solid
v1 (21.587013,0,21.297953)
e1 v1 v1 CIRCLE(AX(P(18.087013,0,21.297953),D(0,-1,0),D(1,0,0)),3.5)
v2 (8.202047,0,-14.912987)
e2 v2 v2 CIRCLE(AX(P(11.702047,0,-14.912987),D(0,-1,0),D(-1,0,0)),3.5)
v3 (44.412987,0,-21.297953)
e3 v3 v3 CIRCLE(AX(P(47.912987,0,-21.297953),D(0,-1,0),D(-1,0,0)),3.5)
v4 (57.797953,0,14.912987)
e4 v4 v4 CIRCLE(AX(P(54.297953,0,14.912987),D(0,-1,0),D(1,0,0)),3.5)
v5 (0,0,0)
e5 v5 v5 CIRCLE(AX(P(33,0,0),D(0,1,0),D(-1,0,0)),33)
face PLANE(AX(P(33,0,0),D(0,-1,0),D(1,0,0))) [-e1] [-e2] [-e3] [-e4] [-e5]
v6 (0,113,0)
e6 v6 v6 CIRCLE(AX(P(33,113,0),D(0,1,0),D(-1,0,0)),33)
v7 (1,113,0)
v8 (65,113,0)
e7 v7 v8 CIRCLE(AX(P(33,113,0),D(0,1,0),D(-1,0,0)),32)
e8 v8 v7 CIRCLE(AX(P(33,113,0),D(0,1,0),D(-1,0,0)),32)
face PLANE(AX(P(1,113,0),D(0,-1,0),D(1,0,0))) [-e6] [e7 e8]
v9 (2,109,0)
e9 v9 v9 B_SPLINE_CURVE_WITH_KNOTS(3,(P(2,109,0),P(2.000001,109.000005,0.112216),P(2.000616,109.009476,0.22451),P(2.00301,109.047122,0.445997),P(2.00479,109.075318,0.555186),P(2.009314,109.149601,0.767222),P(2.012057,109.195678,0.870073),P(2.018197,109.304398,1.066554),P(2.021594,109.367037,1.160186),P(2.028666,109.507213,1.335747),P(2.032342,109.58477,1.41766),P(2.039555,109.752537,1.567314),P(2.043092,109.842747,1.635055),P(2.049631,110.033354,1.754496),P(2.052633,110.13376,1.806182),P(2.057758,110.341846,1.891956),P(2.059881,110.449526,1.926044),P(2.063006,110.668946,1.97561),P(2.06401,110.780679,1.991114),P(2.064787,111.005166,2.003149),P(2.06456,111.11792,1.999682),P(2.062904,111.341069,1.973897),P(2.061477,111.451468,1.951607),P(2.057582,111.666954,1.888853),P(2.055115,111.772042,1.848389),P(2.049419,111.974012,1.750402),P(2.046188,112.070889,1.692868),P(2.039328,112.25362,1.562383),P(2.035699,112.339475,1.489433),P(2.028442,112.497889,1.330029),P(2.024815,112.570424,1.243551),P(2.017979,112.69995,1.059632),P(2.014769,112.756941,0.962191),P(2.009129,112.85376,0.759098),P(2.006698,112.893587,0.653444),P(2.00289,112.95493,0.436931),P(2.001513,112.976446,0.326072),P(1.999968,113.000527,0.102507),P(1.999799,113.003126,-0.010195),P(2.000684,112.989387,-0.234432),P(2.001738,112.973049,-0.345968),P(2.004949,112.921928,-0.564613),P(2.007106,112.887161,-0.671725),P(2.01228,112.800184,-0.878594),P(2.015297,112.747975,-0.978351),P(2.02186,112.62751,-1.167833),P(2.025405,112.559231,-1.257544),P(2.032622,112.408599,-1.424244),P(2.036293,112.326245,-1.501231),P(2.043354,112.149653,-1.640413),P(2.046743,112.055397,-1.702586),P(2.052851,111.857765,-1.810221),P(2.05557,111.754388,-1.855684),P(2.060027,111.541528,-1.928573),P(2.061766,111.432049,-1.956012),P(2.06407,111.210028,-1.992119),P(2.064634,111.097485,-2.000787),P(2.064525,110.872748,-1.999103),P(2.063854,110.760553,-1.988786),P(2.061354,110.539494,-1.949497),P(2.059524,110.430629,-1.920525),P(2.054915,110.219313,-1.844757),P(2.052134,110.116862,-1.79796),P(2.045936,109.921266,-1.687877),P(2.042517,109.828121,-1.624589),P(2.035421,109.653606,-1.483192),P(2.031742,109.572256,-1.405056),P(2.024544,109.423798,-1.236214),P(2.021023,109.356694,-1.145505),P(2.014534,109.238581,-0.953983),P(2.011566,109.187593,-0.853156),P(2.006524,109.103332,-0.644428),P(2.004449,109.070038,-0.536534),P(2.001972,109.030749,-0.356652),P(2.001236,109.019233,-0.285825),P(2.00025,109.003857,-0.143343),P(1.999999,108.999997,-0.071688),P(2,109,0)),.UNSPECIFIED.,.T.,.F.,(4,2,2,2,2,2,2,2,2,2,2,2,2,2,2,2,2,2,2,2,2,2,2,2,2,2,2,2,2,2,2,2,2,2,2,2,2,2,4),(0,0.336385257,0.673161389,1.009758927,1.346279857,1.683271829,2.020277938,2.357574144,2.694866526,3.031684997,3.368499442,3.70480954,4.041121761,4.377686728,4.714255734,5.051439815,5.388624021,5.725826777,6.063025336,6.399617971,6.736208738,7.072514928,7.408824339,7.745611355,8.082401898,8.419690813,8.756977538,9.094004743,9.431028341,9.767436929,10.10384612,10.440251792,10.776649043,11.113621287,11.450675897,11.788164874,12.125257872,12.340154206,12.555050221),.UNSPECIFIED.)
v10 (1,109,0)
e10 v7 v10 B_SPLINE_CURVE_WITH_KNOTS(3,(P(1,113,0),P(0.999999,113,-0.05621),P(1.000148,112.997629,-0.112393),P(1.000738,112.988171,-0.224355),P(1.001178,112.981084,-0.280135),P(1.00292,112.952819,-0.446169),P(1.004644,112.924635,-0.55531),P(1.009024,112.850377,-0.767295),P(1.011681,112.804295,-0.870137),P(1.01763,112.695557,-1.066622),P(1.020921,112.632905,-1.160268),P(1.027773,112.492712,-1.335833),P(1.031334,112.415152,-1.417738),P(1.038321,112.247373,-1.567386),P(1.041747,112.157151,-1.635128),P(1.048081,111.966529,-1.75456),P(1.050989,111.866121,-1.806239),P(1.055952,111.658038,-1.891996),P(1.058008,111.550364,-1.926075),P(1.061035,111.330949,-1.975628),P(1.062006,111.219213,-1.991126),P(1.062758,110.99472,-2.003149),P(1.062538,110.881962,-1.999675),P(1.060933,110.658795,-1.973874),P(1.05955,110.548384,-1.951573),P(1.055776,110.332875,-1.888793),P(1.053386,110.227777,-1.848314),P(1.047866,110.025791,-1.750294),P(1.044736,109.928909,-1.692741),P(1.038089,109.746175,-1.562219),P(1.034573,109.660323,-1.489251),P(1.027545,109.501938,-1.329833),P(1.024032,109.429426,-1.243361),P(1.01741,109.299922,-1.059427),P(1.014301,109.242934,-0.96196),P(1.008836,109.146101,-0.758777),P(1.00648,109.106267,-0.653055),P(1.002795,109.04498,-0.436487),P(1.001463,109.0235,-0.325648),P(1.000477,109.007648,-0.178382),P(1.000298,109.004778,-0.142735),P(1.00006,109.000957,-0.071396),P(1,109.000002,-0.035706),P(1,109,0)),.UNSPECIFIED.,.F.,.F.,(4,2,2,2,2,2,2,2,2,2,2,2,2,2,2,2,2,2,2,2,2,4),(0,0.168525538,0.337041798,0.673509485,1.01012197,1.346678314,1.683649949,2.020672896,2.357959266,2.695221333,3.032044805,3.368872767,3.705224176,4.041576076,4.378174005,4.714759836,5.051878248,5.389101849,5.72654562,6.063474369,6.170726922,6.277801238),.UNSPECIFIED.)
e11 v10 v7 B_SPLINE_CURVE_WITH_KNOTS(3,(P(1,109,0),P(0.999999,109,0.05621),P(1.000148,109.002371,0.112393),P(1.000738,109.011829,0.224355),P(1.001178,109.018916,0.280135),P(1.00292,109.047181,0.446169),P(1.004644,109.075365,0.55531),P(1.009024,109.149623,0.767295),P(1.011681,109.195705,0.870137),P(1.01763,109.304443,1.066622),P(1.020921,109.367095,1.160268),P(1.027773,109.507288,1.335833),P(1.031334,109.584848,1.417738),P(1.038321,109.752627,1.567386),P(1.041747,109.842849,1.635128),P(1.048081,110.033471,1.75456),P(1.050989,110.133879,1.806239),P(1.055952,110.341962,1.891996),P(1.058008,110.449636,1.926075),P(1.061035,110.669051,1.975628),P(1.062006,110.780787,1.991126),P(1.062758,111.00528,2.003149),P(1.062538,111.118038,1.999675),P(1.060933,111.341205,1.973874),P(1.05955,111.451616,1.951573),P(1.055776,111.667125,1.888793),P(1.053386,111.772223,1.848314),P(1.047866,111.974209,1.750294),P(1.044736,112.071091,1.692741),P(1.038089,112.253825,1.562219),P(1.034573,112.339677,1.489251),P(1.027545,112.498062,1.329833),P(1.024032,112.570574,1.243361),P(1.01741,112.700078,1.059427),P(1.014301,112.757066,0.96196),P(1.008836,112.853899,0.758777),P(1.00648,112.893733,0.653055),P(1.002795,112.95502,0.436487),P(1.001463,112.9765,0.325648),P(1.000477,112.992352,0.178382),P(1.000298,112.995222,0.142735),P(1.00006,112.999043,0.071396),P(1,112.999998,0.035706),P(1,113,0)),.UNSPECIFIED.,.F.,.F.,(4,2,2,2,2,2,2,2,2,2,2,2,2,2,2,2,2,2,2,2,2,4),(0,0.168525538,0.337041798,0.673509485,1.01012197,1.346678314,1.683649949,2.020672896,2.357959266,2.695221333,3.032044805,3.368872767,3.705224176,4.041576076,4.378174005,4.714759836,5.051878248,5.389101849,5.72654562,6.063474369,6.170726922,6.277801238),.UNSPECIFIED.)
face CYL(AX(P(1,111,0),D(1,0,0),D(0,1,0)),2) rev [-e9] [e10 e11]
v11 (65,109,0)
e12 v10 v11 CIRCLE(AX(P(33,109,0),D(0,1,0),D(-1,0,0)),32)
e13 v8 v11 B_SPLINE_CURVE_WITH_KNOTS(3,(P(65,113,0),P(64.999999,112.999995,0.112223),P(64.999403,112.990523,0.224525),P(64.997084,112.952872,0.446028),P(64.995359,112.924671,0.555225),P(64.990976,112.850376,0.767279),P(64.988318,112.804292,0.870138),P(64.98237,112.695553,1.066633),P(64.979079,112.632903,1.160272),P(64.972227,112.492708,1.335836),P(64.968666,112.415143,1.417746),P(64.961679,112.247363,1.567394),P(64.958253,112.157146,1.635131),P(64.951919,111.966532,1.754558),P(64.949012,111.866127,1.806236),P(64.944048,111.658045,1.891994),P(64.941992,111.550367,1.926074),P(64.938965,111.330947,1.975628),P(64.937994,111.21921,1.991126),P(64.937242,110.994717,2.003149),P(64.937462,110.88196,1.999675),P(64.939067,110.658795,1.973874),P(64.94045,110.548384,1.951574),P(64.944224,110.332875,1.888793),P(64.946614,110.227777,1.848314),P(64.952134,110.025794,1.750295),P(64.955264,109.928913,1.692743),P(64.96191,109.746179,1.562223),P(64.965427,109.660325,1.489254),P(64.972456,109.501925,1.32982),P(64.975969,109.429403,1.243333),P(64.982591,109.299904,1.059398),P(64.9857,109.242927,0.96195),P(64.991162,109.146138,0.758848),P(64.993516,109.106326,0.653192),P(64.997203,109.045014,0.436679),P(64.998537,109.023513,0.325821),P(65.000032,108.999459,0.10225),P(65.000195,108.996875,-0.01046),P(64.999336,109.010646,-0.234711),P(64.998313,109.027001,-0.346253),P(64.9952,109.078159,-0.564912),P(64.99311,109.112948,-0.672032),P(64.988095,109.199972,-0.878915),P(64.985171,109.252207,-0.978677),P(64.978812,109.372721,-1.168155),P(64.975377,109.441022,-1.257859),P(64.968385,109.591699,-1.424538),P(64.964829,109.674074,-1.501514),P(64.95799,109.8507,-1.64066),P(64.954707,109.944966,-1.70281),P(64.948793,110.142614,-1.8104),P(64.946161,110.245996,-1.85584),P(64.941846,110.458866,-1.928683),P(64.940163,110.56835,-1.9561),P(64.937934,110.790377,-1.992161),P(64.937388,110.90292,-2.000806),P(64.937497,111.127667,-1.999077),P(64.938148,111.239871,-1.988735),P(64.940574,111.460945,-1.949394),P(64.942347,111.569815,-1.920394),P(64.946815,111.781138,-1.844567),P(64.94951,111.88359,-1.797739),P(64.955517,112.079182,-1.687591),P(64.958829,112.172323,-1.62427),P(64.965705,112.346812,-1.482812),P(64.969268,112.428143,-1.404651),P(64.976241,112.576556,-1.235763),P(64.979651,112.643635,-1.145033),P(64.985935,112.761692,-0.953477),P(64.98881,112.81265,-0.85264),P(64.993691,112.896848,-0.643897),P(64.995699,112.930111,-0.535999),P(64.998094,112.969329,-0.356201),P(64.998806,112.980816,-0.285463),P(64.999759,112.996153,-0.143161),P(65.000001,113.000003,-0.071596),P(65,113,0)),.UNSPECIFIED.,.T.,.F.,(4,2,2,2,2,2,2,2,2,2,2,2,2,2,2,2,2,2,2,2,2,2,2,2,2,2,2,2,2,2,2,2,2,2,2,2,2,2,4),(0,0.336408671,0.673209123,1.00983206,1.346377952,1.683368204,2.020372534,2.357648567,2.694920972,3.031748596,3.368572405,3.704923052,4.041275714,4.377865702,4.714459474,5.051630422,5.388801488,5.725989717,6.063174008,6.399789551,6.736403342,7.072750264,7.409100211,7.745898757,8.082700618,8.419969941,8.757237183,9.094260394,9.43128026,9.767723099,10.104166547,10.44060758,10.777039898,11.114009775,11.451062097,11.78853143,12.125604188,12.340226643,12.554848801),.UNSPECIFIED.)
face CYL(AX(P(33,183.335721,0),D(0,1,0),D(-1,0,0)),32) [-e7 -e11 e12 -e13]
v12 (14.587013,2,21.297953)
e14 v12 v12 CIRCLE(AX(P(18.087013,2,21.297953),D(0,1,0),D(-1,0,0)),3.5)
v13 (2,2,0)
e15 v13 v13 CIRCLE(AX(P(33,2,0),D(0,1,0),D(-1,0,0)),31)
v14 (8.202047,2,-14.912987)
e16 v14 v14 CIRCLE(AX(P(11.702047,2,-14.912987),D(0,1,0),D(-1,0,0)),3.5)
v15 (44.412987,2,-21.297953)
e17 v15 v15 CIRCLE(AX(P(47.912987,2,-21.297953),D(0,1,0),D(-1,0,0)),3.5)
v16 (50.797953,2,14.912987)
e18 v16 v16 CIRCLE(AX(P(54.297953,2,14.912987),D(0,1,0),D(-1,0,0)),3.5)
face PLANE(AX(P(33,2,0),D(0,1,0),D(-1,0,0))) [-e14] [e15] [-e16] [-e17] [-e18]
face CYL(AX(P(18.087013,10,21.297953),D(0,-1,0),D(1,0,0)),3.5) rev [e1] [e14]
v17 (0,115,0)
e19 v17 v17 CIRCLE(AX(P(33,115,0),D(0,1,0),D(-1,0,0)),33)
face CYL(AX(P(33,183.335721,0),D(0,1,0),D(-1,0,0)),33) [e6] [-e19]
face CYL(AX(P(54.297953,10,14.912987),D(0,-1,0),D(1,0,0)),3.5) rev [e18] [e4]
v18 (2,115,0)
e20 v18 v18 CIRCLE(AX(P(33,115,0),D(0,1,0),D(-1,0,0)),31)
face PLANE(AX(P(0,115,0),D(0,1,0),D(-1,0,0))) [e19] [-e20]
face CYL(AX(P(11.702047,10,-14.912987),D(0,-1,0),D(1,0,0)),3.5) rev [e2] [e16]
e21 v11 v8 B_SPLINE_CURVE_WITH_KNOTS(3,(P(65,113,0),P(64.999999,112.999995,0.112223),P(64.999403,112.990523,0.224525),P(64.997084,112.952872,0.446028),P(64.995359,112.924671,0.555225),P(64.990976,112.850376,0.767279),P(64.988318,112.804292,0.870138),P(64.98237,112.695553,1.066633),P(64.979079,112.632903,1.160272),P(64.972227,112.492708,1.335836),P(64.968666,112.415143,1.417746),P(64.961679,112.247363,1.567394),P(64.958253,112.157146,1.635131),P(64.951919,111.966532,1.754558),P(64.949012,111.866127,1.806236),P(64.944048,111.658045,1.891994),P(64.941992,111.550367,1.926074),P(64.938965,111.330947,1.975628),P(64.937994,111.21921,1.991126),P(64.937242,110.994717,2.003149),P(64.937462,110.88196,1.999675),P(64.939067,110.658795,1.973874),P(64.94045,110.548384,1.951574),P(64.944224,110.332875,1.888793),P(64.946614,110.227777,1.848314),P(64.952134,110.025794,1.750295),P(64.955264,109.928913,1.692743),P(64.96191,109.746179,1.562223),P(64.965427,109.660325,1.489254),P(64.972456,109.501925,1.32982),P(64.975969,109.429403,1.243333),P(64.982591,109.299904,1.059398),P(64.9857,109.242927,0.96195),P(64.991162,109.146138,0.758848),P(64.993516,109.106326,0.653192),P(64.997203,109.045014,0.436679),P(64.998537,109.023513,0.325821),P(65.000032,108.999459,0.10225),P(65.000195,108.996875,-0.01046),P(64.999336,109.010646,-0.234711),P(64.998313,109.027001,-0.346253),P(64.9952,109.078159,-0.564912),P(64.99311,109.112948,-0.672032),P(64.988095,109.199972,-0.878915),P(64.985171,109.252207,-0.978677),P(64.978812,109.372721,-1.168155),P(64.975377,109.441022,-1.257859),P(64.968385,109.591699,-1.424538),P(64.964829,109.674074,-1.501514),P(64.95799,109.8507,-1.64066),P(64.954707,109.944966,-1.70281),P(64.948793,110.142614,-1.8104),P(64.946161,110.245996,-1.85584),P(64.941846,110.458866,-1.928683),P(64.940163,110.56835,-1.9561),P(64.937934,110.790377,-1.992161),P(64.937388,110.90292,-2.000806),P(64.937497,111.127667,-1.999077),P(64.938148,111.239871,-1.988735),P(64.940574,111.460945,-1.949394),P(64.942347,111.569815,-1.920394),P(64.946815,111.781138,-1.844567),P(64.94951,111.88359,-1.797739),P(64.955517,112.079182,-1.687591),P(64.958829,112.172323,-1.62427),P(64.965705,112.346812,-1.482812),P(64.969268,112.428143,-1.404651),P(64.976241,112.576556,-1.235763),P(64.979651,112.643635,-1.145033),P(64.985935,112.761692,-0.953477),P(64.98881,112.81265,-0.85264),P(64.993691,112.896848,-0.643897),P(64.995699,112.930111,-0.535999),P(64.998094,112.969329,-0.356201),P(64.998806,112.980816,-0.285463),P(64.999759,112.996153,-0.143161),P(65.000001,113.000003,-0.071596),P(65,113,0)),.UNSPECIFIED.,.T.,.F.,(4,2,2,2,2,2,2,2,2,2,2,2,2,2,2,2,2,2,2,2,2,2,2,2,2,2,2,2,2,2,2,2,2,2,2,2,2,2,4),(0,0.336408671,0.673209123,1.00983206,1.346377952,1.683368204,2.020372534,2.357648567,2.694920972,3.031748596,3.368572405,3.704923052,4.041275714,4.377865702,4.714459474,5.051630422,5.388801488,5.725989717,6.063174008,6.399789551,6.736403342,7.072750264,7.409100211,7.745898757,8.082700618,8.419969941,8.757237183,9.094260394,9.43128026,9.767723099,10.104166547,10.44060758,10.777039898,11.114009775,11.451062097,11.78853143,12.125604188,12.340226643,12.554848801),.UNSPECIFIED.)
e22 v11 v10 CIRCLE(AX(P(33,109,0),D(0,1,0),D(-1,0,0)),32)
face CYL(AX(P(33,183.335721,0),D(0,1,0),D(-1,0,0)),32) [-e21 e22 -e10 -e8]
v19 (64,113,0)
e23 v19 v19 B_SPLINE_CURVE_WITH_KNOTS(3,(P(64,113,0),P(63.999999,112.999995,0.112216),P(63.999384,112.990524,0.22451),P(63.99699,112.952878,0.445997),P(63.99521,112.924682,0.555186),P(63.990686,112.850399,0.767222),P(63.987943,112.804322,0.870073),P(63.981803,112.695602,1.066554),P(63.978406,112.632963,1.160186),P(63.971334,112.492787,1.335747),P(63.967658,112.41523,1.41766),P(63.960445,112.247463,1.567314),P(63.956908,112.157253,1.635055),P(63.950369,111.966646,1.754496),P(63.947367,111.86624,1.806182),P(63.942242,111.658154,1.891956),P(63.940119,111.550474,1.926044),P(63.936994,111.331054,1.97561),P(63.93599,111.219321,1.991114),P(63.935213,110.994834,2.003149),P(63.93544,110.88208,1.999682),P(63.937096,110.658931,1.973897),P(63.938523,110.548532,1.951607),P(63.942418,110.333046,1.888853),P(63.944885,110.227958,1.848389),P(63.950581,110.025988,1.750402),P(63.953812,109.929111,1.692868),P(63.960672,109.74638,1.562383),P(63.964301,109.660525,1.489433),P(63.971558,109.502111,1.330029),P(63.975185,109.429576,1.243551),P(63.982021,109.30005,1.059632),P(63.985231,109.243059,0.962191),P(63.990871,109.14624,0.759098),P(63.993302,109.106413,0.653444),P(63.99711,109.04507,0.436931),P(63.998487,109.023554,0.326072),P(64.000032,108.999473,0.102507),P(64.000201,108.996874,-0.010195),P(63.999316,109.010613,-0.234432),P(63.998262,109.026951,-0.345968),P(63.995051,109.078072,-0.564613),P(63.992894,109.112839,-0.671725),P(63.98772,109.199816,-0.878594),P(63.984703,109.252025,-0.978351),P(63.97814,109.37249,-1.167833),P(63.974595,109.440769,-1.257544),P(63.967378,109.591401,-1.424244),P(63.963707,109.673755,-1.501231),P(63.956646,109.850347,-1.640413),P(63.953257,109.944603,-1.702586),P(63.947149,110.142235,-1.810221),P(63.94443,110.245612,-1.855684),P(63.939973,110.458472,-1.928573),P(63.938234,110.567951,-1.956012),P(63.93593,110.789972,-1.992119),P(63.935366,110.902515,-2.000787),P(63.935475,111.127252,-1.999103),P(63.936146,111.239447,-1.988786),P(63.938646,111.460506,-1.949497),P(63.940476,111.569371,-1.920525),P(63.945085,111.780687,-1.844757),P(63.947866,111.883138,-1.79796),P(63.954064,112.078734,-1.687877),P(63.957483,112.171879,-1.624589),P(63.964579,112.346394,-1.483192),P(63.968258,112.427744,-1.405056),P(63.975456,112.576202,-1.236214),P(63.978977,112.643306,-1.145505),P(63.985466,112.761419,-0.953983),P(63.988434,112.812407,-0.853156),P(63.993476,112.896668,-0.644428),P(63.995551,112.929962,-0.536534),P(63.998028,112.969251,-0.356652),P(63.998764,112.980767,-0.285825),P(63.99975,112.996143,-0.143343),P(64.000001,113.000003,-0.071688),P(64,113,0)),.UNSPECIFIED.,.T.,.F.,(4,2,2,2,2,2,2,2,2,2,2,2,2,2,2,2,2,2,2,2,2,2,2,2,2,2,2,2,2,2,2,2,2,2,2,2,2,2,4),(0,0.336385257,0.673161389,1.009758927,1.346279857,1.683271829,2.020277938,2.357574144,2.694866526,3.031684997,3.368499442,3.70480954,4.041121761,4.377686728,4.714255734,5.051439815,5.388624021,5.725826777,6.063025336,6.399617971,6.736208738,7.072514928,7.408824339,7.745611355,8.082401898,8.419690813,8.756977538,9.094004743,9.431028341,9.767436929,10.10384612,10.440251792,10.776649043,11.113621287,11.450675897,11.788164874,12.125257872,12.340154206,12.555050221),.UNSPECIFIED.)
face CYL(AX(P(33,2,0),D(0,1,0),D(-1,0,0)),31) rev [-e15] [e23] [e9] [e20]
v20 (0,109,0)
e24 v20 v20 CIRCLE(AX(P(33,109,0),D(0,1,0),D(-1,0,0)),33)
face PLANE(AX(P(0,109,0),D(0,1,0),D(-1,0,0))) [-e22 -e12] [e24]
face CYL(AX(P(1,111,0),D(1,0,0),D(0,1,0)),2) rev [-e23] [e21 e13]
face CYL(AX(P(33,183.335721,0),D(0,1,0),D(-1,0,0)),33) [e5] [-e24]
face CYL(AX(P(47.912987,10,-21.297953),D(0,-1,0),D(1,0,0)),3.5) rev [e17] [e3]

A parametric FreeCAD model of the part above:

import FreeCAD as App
import Part
import Sketcher

V = App.Vector

doc = App.newDocument("Part")
body = doc.addObject("PartDesign::Body", "Body")

# Sketch on XY plane
sketch1 = body.newObject("Sketcher::SketchObject", "Sketch")
sketch1.AttachmentSupport = (doc.getObject("XY_Plane"), [""])
sketch1.MapMode = "FlatFace"
sketch1.addGeometry(Part.LineSegment(V(0, 109, 0), V(0, 0, 0)), False)
sketch1.addGeometry(Part.LineSegment(V(0, 0, 0), V(33, 0, 0)), False)
sketch1.addGeometry(Part.LineSegment(V(33, 0, 0), V(33, 115, 0)), False)
sketch1.addGeometry(Part.LineSegment(V(33, 115, 0), V(0, 115, 0)), False)
sketch1.addGeometry(Part.LineSegment(V(0, 115, 0), V(0, 113, 0)), False)
sketch1.addGeometry(Part.LineSegment(V(0, 113, 0), V(1, 113, 0)), False)
sketch1.addGeometry(Part.LineSegment(V(1, 113, 0), V(1, 109, 0)), False)
sketch1.addGeometry(Part.LineSegment(V(1, 109, 0), V(0, 109, 0)), False)
sketch1.addGeometry(Part.LineSegment(V(33, 115, 0), V(33, 0, 0)), True)  # axis
sketch1.addConstraint(Sketcher.Constraint("Coincident", 0, 2, 1, 1))
sketch1.addConstraint(Sketcher.Constraint("Coincident", 1, 2, 2, 1))
sketch1.addConstraint(Sketcher.Constraint("Coincident", 2, 2, 3, 1))
sketch1.addConstraint(Sketcher.Constraint("Coincident", 3, 2, 4, 1))
sketch1.addConstraint(Sketcher.Constraint("Coincident", 4, 2, 5, 1))
sketch1.addConstraint(Sketcher.Constraint("Coincident", 5, 2, 6, 1))
sketch1.addConstraint(Sketcher.Constraint("Coincident", 6, 2, 7, 1))
sketch1.addConstraint(Sketcher.Constraint("Coincident", 7, 2, 0, 1))
sketch1.addConstraint(Sketcher.Constraint("Vertical", 0))
sketch1.addConstraint(Sketcher.Constraint("Horizontal", 1))
sketch1.addConstraint(Sketcher.Constraint("Vertical", 2))
sketch1.addConstraint(Sketcher.Constraint("Horizontal", 3))
sketch1.addConstraint(Sketcher.Constraint("Vertical", 4))
sketch1.addConstraint(Sketcher.Constraint("Horizontal", 5))
sketch1.addConstraint(Sketcher.Constraint("Vertical", 6))
sketch1.addConstraint(Sketcher.Constraint("Horizontal", 7))
sketch1.addConstraint(Sketcher.Constraint("Vertical", 8))
sketch1.addConstraint(Sketcher.Constraint("Coincident", 0, 2, -1, 1))
sketch1.addConstraint(Sketcher.Constraint("Coincident", 8, 1, 2, 2))
sketch1.addConstraint(Sketcher.Constraint("PointOnObject", 3, 2, -2))
sketch1.addConstraint(Sketcher.Constraint("PointOnObject", 8, 2, -1))
sketch1.addConstraint(Sketcher.Constraint("DistanceX", 1, 1, 1, 2, 33.0))
sketch1.addConstraint(Sketcher.Constraint("DistanceX", 5, 1, 5, 2, 1.0))
sketch1.addConstraint(Sketcher.Constraint("DistanceY", 0, 2, 0, 1, 109.0))
sketch1.addConstraint(Sketcher.Constraint("DistanceY", 2, 1, 2, 2, 115.0))
sketch1.addConstraint(Sketcher.Constraint("DistanceY", 4, 2, 4, 1, 2.0))
revolution = body.newObject("PartDesign::Revolution", "Revolution")
revolution.Profile = sketch1
revolution.ReferenceAxis = (sketch1, ["Axis0"])
revolution.Angle = 360

# Sketch on XZ plane
sketch2 = body.newObject("Sketcher::SketchObject", "Sketch001")
sketch2.AttachmentSupport = (doc.getObject("XZ_Plane"), [""])
sketch2.MapMode = "FlatFace"
sketch2.AttachmentOffset = App.Placement(V(0, 0, -115), App.Rotation())
sketch2.addGeometry(Part.Circle(V(33, 0, 0), V(0, 0, 1), 31), False)
sketch2.addConstraint(Sketcher.Constraint("PointOnObject", 0, 3, -1))
sketch2.addConstraint(Sketcher.Constraint("Diameter", 0, 62.0))
sketch2.addConstraint(Sketcher.Constraint("DistanceX", -1, 1, 0, 3, 33.0))
pocket1 = body.newObject("PartDesign::Pocket", "Pocket")
pocket1.Profile = sketch2
pocket1.Length = 113
pocket1.Reversed = True

# Sketch on YZ plane
sketch3 = body.newObject("Sketcher::SketchObject", "Sketch002")
sketch3.AttachmentSupport = (doc.getObject("YZ_Plane"), [""])
sketch3.MapMode = "FlatFace"
sketch3.AttachmentOffset = App.Placement(V(0, 0, 65), App.Rotation())
sketch3.addGeometry(Part.Circle(V(111, 0, 0), V(0, 0, 1), 2), False)
sketch3.addConstraint(Sketcher.Constraint("PointOnObject", 0, 3, -1))
sketch3.addConstraint(Sketcher.Constraint("Diameter", 0, 4.0))
sketch3.addConstraint(Sketcher.Constraint("DistanceX", -1, 1, 0, 3, 111.0))
pocket2 = body.newObject("PartDesign::Pocket", "Pocket001")
pocket2.Profile = sketch3
pocket2.Length = 64

# Sketch on XZ plane
sketch4 = body.newObject("Sketcher::SketchObject", "Sketch003")
sketch4.AttachmentSupport = (doc.getObject("XZ_Plane"), [""])
sketch4.MapMode = "FlatFace"
sketch4.addGeometry(Part.Circle(V(54.3, 14.9, 0), V(0, 0, 1), 3.5), False)
sketch4.addGeometry(Part.Circle(V(18.1, 21.3, 0), V(0, 0, 1), 3.5), False)
sketch4.addGeometry(Part.Circle(V(11.7, -14.9, 0), V(0, 0, 1), 3.5), False)
sketch4.addGeometry(Part.Circle(V(47.9, -21.3, 0), V(0, 0, 1), 3.5), False)
sketch4.addConstraint(Sketcher.Constraint("Equal", 0, 1))
sketch4.addConstraint(Sketcher.Constraint("Equal", 1, 2))
sketch4.addConstraint(Sketcher.Constraint("Equal", 2, 3))
sketch4.addConstraint(Sketcher.Constraint("Diameter", 0, 7.0))
sketch4.addConstraint(Sketcher.Constraint("DistanceX", 1, 3, 0, 3, 36.21094))
sketch4.addConstraint(Sketcher.Constraint("DistanceY", 2, 3, 1, 3, 36.21094))
sketch4.addConstraint(Sketcher.Constraint("DistanceX", 2, 3, 3, 3, 36.21094))
sketch4.addConstraint(Sketcher.Constraint("DistanceY", 3, 3, 0, 3, 36.21094))
sketch4.addConstraint(Sketcher.Constraint("DistanceX", -1, 1, 0, 3, 54.297953))
sketch4.addConstraint(Sketcher.Constraint("DistanceY", -1, 1, 0, 3, 14.912987))
sketch4.addConstraint(Sketcher.Constraint("DistanceY", -1, 1, 1, 3, 21.297953))
sketch4.addConstraint(Sketcher.Constraint("DistanceX", -1, 1, 2, 3, 11.702047))
pocket3 = body.newObject("PartDesign::Pocket", "Pocket002")
pocket3.Profile = sketch4
pocket3.Length = 10

doc.recompute()
